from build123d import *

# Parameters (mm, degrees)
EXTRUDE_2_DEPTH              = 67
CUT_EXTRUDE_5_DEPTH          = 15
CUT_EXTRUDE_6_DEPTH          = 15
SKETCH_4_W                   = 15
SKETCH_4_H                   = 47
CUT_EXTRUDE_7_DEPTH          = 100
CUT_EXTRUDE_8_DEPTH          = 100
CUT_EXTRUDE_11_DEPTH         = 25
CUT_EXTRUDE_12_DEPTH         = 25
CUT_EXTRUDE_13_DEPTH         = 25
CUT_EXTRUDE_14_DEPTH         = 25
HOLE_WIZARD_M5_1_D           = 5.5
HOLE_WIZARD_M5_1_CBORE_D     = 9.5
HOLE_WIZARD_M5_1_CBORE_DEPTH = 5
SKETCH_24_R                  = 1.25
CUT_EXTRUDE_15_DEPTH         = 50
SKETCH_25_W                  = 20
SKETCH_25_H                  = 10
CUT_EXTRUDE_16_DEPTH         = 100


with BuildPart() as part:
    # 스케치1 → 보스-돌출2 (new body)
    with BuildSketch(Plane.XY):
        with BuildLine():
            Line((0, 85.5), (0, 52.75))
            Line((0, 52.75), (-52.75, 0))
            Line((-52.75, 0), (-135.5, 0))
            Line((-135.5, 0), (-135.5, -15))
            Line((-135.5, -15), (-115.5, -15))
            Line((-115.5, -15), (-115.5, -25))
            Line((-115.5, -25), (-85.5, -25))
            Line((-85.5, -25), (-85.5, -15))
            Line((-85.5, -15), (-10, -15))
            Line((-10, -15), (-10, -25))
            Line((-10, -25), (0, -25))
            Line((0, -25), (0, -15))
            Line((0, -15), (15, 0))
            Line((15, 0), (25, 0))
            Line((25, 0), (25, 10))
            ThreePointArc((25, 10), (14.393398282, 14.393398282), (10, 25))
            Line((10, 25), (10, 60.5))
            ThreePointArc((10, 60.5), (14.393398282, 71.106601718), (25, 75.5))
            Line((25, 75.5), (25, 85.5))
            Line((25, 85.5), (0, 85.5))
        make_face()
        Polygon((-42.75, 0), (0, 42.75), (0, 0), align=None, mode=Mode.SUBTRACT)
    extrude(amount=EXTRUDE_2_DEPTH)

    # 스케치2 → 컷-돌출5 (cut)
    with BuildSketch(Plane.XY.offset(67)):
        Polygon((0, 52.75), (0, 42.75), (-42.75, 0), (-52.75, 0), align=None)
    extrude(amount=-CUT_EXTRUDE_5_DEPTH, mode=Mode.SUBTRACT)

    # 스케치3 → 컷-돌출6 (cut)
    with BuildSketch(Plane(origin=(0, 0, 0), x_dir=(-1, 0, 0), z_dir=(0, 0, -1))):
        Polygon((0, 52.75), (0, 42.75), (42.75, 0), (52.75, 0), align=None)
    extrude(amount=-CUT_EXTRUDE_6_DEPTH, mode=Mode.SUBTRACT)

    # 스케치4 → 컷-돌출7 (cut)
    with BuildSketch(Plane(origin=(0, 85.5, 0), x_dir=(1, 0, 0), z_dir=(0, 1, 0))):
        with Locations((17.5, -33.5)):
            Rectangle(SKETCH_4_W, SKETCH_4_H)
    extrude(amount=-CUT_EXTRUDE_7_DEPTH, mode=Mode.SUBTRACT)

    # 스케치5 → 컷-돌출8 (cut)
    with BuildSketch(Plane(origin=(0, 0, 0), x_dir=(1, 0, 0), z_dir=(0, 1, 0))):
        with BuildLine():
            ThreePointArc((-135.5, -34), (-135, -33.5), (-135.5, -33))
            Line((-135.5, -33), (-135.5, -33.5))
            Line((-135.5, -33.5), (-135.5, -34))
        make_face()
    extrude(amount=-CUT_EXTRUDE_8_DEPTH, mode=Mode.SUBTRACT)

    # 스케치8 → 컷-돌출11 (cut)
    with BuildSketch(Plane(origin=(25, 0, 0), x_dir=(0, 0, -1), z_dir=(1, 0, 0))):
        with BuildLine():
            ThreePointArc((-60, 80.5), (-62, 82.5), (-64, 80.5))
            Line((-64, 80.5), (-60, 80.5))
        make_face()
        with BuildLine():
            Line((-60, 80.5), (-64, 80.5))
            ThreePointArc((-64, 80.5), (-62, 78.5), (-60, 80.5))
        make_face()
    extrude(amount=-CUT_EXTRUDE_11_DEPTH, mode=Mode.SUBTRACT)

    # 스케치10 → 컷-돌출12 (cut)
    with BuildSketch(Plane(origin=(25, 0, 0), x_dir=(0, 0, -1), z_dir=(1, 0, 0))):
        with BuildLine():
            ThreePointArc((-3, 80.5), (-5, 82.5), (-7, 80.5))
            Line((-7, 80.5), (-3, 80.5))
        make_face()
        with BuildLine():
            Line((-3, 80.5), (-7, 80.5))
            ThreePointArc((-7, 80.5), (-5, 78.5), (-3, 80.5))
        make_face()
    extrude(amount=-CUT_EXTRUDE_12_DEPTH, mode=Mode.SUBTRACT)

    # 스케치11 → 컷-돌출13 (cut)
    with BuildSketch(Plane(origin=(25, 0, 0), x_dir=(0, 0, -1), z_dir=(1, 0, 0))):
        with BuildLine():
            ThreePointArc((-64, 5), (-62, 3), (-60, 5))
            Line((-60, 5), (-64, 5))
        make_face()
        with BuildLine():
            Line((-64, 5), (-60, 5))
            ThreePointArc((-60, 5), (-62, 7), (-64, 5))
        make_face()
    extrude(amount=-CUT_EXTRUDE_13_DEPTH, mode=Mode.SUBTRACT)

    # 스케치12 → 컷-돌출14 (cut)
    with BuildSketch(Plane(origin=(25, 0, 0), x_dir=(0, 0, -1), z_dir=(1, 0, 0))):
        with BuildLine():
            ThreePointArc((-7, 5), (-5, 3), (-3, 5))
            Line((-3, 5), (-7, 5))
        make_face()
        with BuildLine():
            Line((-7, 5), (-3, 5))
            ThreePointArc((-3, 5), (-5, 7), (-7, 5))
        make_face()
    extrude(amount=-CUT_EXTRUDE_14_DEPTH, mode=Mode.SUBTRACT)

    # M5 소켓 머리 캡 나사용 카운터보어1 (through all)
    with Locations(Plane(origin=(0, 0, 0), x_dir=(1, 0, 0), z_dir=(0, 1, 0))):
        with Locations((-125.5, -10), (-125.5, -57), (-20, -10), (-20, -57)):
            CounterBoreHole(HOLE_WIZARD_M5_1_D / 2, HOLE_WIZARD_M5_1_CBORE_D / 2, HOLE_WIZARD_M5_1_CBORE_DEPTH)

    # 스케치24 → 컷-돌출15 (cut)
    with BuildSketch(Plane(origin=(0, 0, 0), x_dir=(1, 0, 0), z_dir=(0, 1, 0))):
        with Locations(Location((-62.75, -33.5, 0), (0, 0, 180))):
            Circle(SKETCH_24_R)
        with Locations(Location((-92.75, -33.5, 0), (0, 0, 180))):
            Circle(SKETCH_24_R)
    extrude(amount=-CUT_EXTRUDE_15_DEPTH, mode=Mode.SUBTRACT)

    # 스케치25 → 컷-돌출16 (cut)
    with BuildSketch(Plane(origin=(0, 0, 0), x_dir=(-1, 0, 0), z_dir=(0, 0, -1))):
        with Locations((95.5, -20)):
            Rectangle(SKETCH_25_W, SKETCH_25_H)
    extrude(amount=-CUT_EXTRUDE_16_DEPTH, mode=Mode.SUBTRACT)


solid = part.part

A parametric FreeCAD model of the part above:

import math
import FreeCAD as App
import Part
import Sketcher
from FreeCAD import Vector

doc = App.newDocument("Part")
body = doc.addObject("PartDesign::Body", "Body")

# Sketch on XY plane
sketch1 = doc.addObject("Sketcher::SketchObject", "Sketch")
body.addObject(sketch1)
sketch1.AttachmentSupport = (doc.XY_Plane, [""])
sketch1.MapMode = "FlatFace"
sketch1.addGeometry([
    Part.LineSegment(Vector(0, 86, 0), Vector(0, 53, 0)),  # 0
    Part.LineSegment(Vector(0, 53, 0), Vector(-53, 0, 0)),  # 1
    Part.LineSegment(Vector(-53, 0, 0), Vector(-136, 0, 0)),  # 2
    Part.LineSegment(Vector(-136, 0, 0), Vector(-136, -15, 0)),  # 3
    Part.LineSegment(Vector(-136, -15, 0), Vector(-116, -15, 0)),  # 4
    Part.LineSegment(Vector(-116, -15, 0), Vector(-116, -25, 0)),  # 5
    Part.LineSegment(Vector(-116, -25, 0), Vector(-86, -25, 0)),  # 6
    Part.LineSegment(Vector(-86, -25, 0), Vector(-86, -15, 0)),  # 7
    Part.LineSegment(Vector(-86, -15, 0), Vector(-10, -15, 0)),  # 8
    Part.LineSegment(Vector(-10, -15, 0), Vector(-10, -25, 0)),  # 9
    Part.LineSegment(Vector(-10, -25, 0), Vector(0, -25, 0)),  # 10
    Part.LineSegment(Vector(0, -25, 0), Vector(0, -15, 0)),  # 11
    Part.LineSegment(Vector(0, -15, 0), Vector(15, 0, 0)),  # 12
    Part.LineSegment(Vector(15, 0, 0), Vector(25, 0, 0)),  # 13
    Part.LineSegment(Vector(25, 0, 0), Vector(25, 10, 0)),  # 14
    Part.ArcOfCircle(Part.Circle(Vector(25, 25, 0), Vector(0, 0, 1), 15), math.radians(180), math.radians(270)),  # 15
    Part.LineSegment(Vector(10, 25, 0), Vector(10, 60, 0)),  # 16
    Part.ArcOfCircle(Part.Circle(Vector(25, 61, 0), Vector(0, 0, 1), 15), math.radians(90), math.radians(180)),  # 17
    Part.LineSegment(Vector(25, 76, 0), Vector(25, 86, 0)),  # 18
    Part.LineSegment(Vector(25, 86, 0), Vector(0, 86, 0)),  # 19
    Part.LineSegment(Vector(0, 0, 0), Vector(-43, 0, 0)),  # 20
    Part.LineSegment(Vector(-43, 0, 0), Vector(0, 43, 0)),  # 21
    Part.LineSegment(Vector(0, 43, 0), Vector(0, 0, 0)),  # 22
], False)
sketch1.addConstraint([
    Sketcher.Constraint("Coincident", 0, 2, 1, 1),
    Sketcher.Constraint("Coincident", 1, 2, 2, 1),
    Sketcher.Constraint("Coincident", 2, 2, 3, 1),
    Sketcher.Constraint("Coincident", 3, 2, 4, 1),
    Sketcher.Constraint("Coincident", 4, 2, 5, 1),
    Sketcher.Constraint("Coincident", 5, 2, 6, 1),
    Sketcher.Constraint("Coincident", 6, 2, 7, 1),
    Sketcher.Constraint("Coincident", 7, 2, 8, 1),
    Sketcher.Constraint("Coincident", 8, 2, 9, 1),
    Sketcher.Constraint("Coincident", 9, 2, 10, 1),
    Sketcher.Constraint("Coincident", 10, 2, 11, 1),
    Sketcher.Constraint("Coincident", 11, 2, 12, 1),
    Sketcher.Constraint("Coincident", 12, 2, 13, 1),
    Sketcher.Constraint("Coincident", 13, 2, 14, 1),
    Sketcher.Constraint("Coincident", 14, 2, 15, 2),
    Sketcher.Constraint("Tangent", 15, 1, 16, 1),
    Sketcher.Constraint("Tangent", 16, 2, 17, 2),
    Sketcher.Constraint("Coincident", 17, 1, 18, 1),
    Sketcher.Constraint("Coincident", 18, 2, 19, 1),
    Sketcher.Constraint("Coincident", 19, 2, 0, 1),
    Sketcher.Constraint("Coincident", 20, 2, 21, 1),
    Sketcher.Constraint("Coincident", 21, 2, 22, 1),
    Sketcher.Constraint("Coincident", 22, 2, 20, 1),
    Sketcher.Constraint("Vertical", 0),
    Sketcher.Constraint("Horizontal", 2),
    Sketcher.Constraint("Vertical", 3),
    Sketcher.Constraint("Horizontal", 4),
    Sketcher.Constraint("Vertical", 5),
    Sketcher.Constraint("Horizontal", 6),
    Sketcher.Constraint("Vertical", 7),
    Sketcher.Constraint("Horizontal", 8),
    Sketcher.Constraint("Vertical", 9),
    Sketcher.Constraint("Horizontal", 10),
    Sketcher.Constraint("Vertical", 11),
    Sketcher.Constraint("Horizontal", 13),
    Sketcher.Constraint("Vertical", 14),
    Sketcher.Constraint("Vertical", 16),
    Sketcher.Constraint("Vertical", 18),
    Sketcher.Constraint("Horizontal", 19),
    Sketcher.Constraint("Horizontal", 20),
    Sketcher.Constraint("Vertical", 22),
    Sketcher.Constraint("Coincident", 22, 2, -1, 1),
    Sketcher.Constraint("Equal", 15, 17),
    Sketcher.Constraint("Symmetric", 9, 2, 15, 1, -1, 1),
    Sketcher.Constraint("PointOnObject", 0, 2, -2),
    Sketcher.Constraint("PointOnObject", 1, 2, -1),
    Sketcher.Constraint("PointOnObject", 10, 2, -2),
    Sketcher.Constraint("PointOnObject", 12, 2, -1),
    Sketcher.Constraint("Parallel", 1, 12),
    Sketcher.Constraint("Parallel", 12, 21),
    Sketcher.Constraint("Horizontal", 4, 2, 7, 2),
    Sketcher.Constraint("Horizontal", 6, 2, 9, 2),
    Sketcher.Constraint("Horizontal", 8, 2, 11, 2),
    Sketcher.Constraint("Vertical", 17, 3, 13, 2),
    Sketcher.Constraint("Vertical", 14, 2, 17, 1),
    Sketcher.Constraint("Equal", 10, 13),
    Sketcher.Constraint("Equal", 13, 5),
    Sketcher.Constraint("Equal", 11, 14),
    Sketcher.Constraint("Equal", 14, 18),
    Sketcher.Constraint("Radius", 15, 15.0),
    Sketcher.Constraint("DistanceX", 4, 1, 4, 2, 20.0),
    Sketcher.Constraint("DistanceX", 6, 1, 6, 2, 30.0),
    Sketcher.Constraint("DistanceX", 10, 1, 10, 2, 10.0),
    Sketcher.Constraint("DistanceX", 8, 1, 8, 2, 75.5),
    Sketcher.Constraint("DistanceY", 16, 1, 16, 2, 35.5),
    Sketcher.Constraint("DistanceX", 1, 2, 20, 2, 10.0),
    Sketcher.Constraint("DistanceX", 2, 2, 2, 1, 82.75),
])
pad1 = doc.addObject("PartDesign::Pad", "Pad")
body.addObject(pad1)
pad1.Profile = sketch1
pad1.Length = 67

# Sketch on XY plane
sketch2 = doc.addObject("Sketcher::SketchObject", "Sketch001")
body.addObject(sketch2)
sketch2.AttachmentSupport = (doc.XY_Plane, [""])
sketch2.MapMode = "FlatFace"
sketch2.AttachmentOffset = App.Placement(Vector(0, 0, 67), App.Rotation())
sketch2.addGeometry([
    Part.LineSegment(Vector(0, 43, 0), Vector(0, 53, 0)),
    Part.LineSegment(Vector(0, 53, 0), Vector(-53, 0, 0)),
    Part.LineSegment(Vector(-53, 0, 0), Vector(-43, 0, 0)),
    Part.LineSegment(Vector(-43, 0, 0), Vector(0, 43, 0)),
], False)
sketch2.addConstraint([
    Sketcher.Constraint("Coincident", 0, 2, 1, 1),
    Sketcher.Constraint("Coincident", 1, 2, 2, 1),
    Sketcher.Constraint("Coincident", 2, 2, 3, 1),
    Sketcher.Constraint("Coincident", 3, 2, 0, 1),
    Sketcher.Constraint("Vertical", 0),
    Sketcher.Constraint("Horizontal", 2),
    Sketcher.Constraint("PointOnObject", 0, 2, -2),
    Sketcher.Constraint("PointOnObject", 1, 2, -1),
    Sketcher.Constraint("Parallel", 1, 3),
    Sketcher.Constraint("Equal", 2, 0),
    Sketcher.Constraint("DistanceX", 2, 1, 2, 2, 10.0),
    Sketcher.Constraint("DistanceY", -1, 1, 0, 2, 52.75),
])
pocket1 = doc.addObject("PartDesign::Pocket", "Pocket")
body.addObject(pocket1)
pocket1.Profile = sketch2
pocket1.Length = 15

# Sketch on XY plane
sketch3 = doc.addObject("Sketcher::SketchObject", "Sketch002")
body.addObject(sketch3)
sketch3.AttachmentSupport = (doc.XY_Plane, [""])
sketch3.MapMode = "FlatFace"
sketch3.addGeometry([
    Part.LineSegment(Vector(0, 53, 0), Vector(0, 43, 0)),
    Part.LineSegment(Vector(0, 43, 0), Vector(-43, 0, 0)),
    Part.LineSegment(Vector(-43, 0, 0), Vector(-53, 0, 0)),
    Part.LineSegment(Vector(-53, 0, 0), Vector(0, 53, 0)),
], False)
sketch3.addConstraint([
    Sketcher.Constraint("Coincident", 0, 2, 1, 1),
    Sketcher.Constraint("Coincident", 1, 2, 2, 1),
    Sketcher.Constraint("Coincident", 2, 2, 3, 1),
    Sketcher.Constraint("Coincident", 3, 2, 0, 1),
    Sketcher.Constraint("Vertical", 0),
    Sketcher.Constraint("Horizontal", 2),
    Sketcher.Constraint("PointOnObject", 0, 2, -2),
    Sketcher.Constraint("PointOnObject", 1, 2, -1),
    Sketcher.Constraint("Parallel", 1, 3),
    Sketcher.Constraint("Equal", 2, 0),
    Sketcher.Constraint("DistanceX", 2, 2, 2, 1, 10.0),
    Sketcher.Constraint("DistanceY", -1, 1, 0, 2, 42.75),
])
pocket2 = doc.addObject("PartDesign::Pocket", "Pocket001")
body.addObject(pocket2)
pocket2.Profile = sketch3
pocket2.Length = 15
pocket2.Reversed = True

# Sketch on XZ plane
sketch4 = doc.addObject("Sketcher::SketchObject", "Sketch003")
body.addObject(sketch4)
sketch4.AttachmentSupport = (doc.XZ_Plane, [""])
sketch4.MapMode = "FlatFace"
sketch4.AttachmentOffset = App.Placement(Vector(0, 0, -85.5), App.Rotation())
sketch4.addGeometry([
    Part.LineSegment(Vector(10, 10, 0), Vector(10, 57, 0)),
    Part.LineSegment(Vector(10, 57, 0), Vector(25, 57, 0)),
    Part.LineSegment(Vector(25, 57, 0), Vector(25, 10, 0)),
    Part.LineSegment(Vector(25, 10, 0), Vector(10, 10, 0)),
], False)
sketch4.addConstraint([
    Sketcher.Constraint("Coincident", 0, 2, 1, 1),
    Sketcher.Constraint("Coincident", 1, 2, 2, 1),
    Sketcher.Constraint("Coincident", 2, 2, 3, 1),
    Sketcher.Constraint("Coincident", 3, 2, 0, 1),
    Sketcher.Constraint("Vertical", 0),
    Sketcher.Constraint("Horizontal", 1),
    Sketcher.Constraint("Vertical", 2),
    Sketcher.Constraint("Horizontal", 3),
    Sketcher.Constraint("DistanceX", 1, 1, 1, 2, 15.0),
    Sketcher.Constraint("DistanceY", 0, 1, 0, 2, 47.0),
    Sketcher.Constraint("DistanceX", -1, 1, 0, 2, 10.0),
    Sketcher.Constraint("DistanceY", -1, 1, 0, 2, 57.0),
])
pocket3 = doc.addObject("PartDesign::Pocket", "Pocket002")
body.addObject(pocket3)
pocket3.Profile = sketch4
pocket3.Length = 100
pocket3.Reversed = True

# Sketch on XZ plane
sketch5 = doc.addObject("Sketcher::SketchObject", "Sketch004")
body.addObject(sketch5)
sketch5.AttachmentSupport = (doc.XZ_Plane, [""])
sketch5.MapMode = "FlatFace"
sketch5.addGeometry([
    Part.ArcOfCircle(Part.Circle(Vector(-135.5, 33.5, 0), Vector(0, 0, 1), 0.5), math.radians(-90), math.radians(90)),
    Part.LineSegment(Vector(-135.5, 33, 0), Vector(-135.5, 34, 0)),
], False)
sketch5.addConstraint([
    Sketcher.Constraint("Coincident", 0, 1, 1, 1),
    Sketcher.Constraint("Coincident", 1, 2, 0, 2),
    Sketcher.Constraint("Vertical", 1),
    Sketcher.Constraint("Radius", 0, 0.5),
    Sketcher.Constraint("DistanceY", -1, 1, 0, 1, 33.0),
    Sketcher.Constraint("DistanceX", 0, 3, -1, 1, 135.5),
    Sketcher.Constraint("DistanceX", 0, 1, -1, 1, 135.5),
])
pocket4 = doc.addObject("PartDesign::Pocket", "Pocket003")
body.addObject(pocket4)
pocket4.Profile = sketch5
pocket4.Length = 100
pocket4.Reversed = True

# Sketch on YZ plane
sketch6 = doc.addObject("Sketcher::SketchObject", "Sketch005")
body.addObject(sketch6)
sketch6.AttachmentSupport = (doc.YZ_Plane, [""])
sketch6.MapMode = "FlatFace"
sketch6.AttachmentOffset = App.Placement(Vector(0, 0, 25), App.Rotation())
sketch6.addGeometry(Part.Circle(Vector(80.5, 62, 0), Vector(0, 0, 1), 2), False)
sketch6.addConstraint([
    Sketcher.Constraint("Diameter", 0, 4.0),
    Sketcher.Constraint("DistanceY", -1, 1, 0, 3, 62.0),
    Sketcher.Constraint("DistanceX", -1, 1, 0, 3, 80.5),
])
pocket5 = doc.addObject("PartDesign::Pocket", "Pocket004")
body.addObject(pocket5)
pocket5.Profile = sketch6
pocket5.Length = 25

# Sketch on YZ plane
sketch7 = doc.addObject("Sketcher::SketchObject", "Sketch006")
body.addObject(sketch7)
sketch7.AttachmentSupport = (doc.YZ_Plane, [""])
sketch7.MapMode = "FlatFace"
sketch7.AttachmentOffset = App.Placement(Vector(0, 0, 25), App.Rotation())
sketch7.addGeometry(Part.Circle(Vector(80.5, 5, 0), Vector(0, 0, 1), 2), False)
sketch7.addConstraint([
    Sketcher.Constraint("Diameter", 0, 4.0),
    Sketcher.Constraint("DistanceY", -1, 1, 0, 3, 5.0),
    Sketcher.Constraint("DistanceX", -1, 1, 0, 3, 80.5),
])
pocket6 = doc.addObject("PartDesign::Pocket", "Pocket005")
body.addObject(pocket6)
pocket6.Profile = sketch7
pocket6.Length = 25

# Sketch on YZ plane
sketch8 = doc.addObject("Sketcher::SketchObject", "Sketch007")
body.addObject(sketch8)
sketch8.AttachmentSupport = (doc.YZ_Plane, [""])
sketch8.MapMode = "FlatFace"
sketch8.AttachmentOffset = App.Placement(Vector(0, 0, 25), App.Rotation())
sketch8.addGeometry(Part.Circle(Vector(5, 62, 0), Vector(0, 0, 1), 2), False)
sketch8.addConstraint([
    Sketcher.Constraint("Diameter", 0, 4.0),
    Sketcher.Constraint("DistanceX", -1, 1, 0, 3, 5.0),
    Sketcher.Constraint("DistanceY", -1, 1, 0, 3, 62.0),
])
pocket7 = doc.addObject("PartDesign::Pocket", "Pocket006")
body.addObject(pocket7)
pocket7.Profile = sketch8
pocket7.Length = 25

# Sketch on YZ plane
sketch9 = doc.addObject("Sketcher::SketchObject", "Sketch008")
body.addObject(sketch9)
sketch9.AttachmentSupport = (doc.YZ_Plane, [""])
sketch9.MapMode = "FlatFace"
sketch9.AttachmentOffset = App.Placement(Vector(0, 0, 25), App.Rotation())
sketch9.addGeometry(Part.Circle(Vector(5, 5, 0), Vector(0, 0, 1), 2), False)
sketch9.addConstraint([
    Sketcher.Constraint("Diameter", 0, 4.0),
    Sketcher.Constraint("DistanceX", -1, 1, 0, 3, 5.0),
    Sketcher.Constraint("DistanceY", -1, 1, 0, 3, 5.0),
])
pocket8 = doc.addObject("PartDesign::Pocket", "Pocket007")
body.addObject(pocket8)
pocket8.Profile = sketch9
pocket8.Length = 25

# Sketch on XZ plane
sketch10 = doc.addObject("Sketcher::SketchObject", "Sketch009")
body.addObject(sketch10)
sketch10.AttachmentSupport = (doc.XZ_Plane, [""])
sketch10.MapMode = "FlatFace"
sketch10.addGeometry([
    Part.Circle(Vector(-125.5, 10, 0), Vector(0, 0, 1), 2.8),
    Part.Circle(Vector(-125.5, 57, 0), Vector(0, 0, 1), 2.8),
    Part.Circle(Vector(-20, 10, 0), Vector(0, 0, 1), 2.8),
    Part.Circle(Vector(-20, 57, 0), Vector(0, 0, 1), 2.8),
], False)
sketch10.addConstraint([
    Sketcher.Constraint("Equal", 0, 1),
    Sketcher.Constraint("Equal", 1, 2),
    Sketcher.Constraint("Equal", 2, 3),
    Sketcher.Constraint("Horizontal", 0, 3, 2, 3),
    Sketcher.Constraint("Horizontal", 1, 3, 3, 3),
    Sketcher.Constraint("Vertical", 0, 3, 1, 3),
    Sketcher.Constraint("Vertical", 2, 3, 3, 3),
    Sketcher.Constraint("Diameter", 0, 5.5),
    Sketcher.Constraint("DistanceY", -1, 1, 0, 3, 10.0),
    Sketcher.Constraint("DistanceY", -1, 1, 1, 3, 57.0),
    Sketcher.Constraint("DistanceX", 2, 3, -1, 1, 20.0),
    Sketcher.Constraint("DistanceX", 0, 3, -1, 1, 125.5),
])
doc.recompute()
hole = doc.addObject("PartDesign::Hole", "Hole")
body.addObject(hole)
hole.Profile = sketch10
hole.ThreadType = "None"
hole.Diameter = 5.5
hole.DepthType = "ThroughAll"
hole.HoleCutType = "Counterbore"
hole.HoleCutDiameter = 9.5
hole.HoleCutDepth = 5
hole.Reversed = True

# Sketch on XZ plane
sketch11 = doc.addObject("Sketcher::SketchObject", "Sketch010")
body.addObject(sketch11)
sketch11.AttachmentSupport = (doc.XZ_Plane, [""])
sketch11.MapMode = "FlatFace"
sketch11.addGeometry([
    Part.Circle(Vector(-62.8, 33.5, 0), Vector(0, 0, 1), 1.2),
    Part.Circle(Vector(-92.8, 33.5, 0), Vector(0, 0, 1), 1.2),
], False)
sketch11.addConstraint([
    Sketcher.Constraint("Equal", 0, 1),
    Sketcher.Constraint("Horizontal", 0, 3, 1, 3),
    Sketcher.Constraint("Diameter", 0, 2.5),
    Sketcher.Constraint("DistanceX", 1, 3, 0, 3, 30.0),
    Sketcher.Constraint("DistanceY", -1, 1, 0, 3, 33.5),
    Sketcher.Constraint("DistanceX", 0, 3, -1, 1, 62.75),
])
pocket9 = doc.addObject("PartDesign::Pocket", "Pocket008")
body.addObject(pocket9)
pocket9.Profile = sketch11
pocket9.Length = 50
pocket9.Reversed = True

# Sketch on XY plane
sketch12 = doc.addObject("Sketcher::SketchObject", "Sketch011")
body.addObject(sketch12)
sketch12.AttachmentSupport = (doc.XY_Plane, [""])
sketch12.MapMode = "FlatFace"
sketch12.addGeometry([
    Part.LineSegment(Vector(-86, -15, 0), Vector(-86, -25, 0)),
    Part.LineSegment(Vector(-86, -25, 0), Vector(-106, -25, 0)),
    Part.LineSegment(Vector(-106, -25, 0), Vector(-106, -15, 0)),
    Part.LineSegment(Vector(-106, -15, 0), Vector(-86, -15, 0)),
], False)
sketch12.addConstraint([
    Sketcher.Constraint("Coincident", 0, 2, 1, 1),
    Sketcher.Constraint("Coincident", 1, 2, 2, 1),
    Sketcher.Constraint("Coincident", 2, 2, 3, 1),
    Sketcher.Constraint("Coincident", 3, 2, 0, 1),
    Sketcher.Constraint("Vertical", 0),
    Sketcher.Constraint("Horizontal", 1),
    Sketcher.Constraint("Vertical", 2),
    Sketcher.Constraint("Horizontal", 3),
    Sketcher.Constraint("DistanceX", 1, 2, 1, 1, 20.0),
    Sketcher.Constraint("DistanceY", 0, 2, 0, 1, 10.0),
    Sketcher.Constraint("DistanceY", 0, 2, -1, 1, 25.0),
    Sketcher.Constraint("DistanceX", 0, 2, -1, 1, 85.5),
])
pocket10 = doc.addObject("PartDesign::Pocket", "Pocket009")
body.addObject(pocket10)
pocket10.Profile = sketch12
pocket10.Length = 100
pocket10.Reversed = True

doc.recompute()
